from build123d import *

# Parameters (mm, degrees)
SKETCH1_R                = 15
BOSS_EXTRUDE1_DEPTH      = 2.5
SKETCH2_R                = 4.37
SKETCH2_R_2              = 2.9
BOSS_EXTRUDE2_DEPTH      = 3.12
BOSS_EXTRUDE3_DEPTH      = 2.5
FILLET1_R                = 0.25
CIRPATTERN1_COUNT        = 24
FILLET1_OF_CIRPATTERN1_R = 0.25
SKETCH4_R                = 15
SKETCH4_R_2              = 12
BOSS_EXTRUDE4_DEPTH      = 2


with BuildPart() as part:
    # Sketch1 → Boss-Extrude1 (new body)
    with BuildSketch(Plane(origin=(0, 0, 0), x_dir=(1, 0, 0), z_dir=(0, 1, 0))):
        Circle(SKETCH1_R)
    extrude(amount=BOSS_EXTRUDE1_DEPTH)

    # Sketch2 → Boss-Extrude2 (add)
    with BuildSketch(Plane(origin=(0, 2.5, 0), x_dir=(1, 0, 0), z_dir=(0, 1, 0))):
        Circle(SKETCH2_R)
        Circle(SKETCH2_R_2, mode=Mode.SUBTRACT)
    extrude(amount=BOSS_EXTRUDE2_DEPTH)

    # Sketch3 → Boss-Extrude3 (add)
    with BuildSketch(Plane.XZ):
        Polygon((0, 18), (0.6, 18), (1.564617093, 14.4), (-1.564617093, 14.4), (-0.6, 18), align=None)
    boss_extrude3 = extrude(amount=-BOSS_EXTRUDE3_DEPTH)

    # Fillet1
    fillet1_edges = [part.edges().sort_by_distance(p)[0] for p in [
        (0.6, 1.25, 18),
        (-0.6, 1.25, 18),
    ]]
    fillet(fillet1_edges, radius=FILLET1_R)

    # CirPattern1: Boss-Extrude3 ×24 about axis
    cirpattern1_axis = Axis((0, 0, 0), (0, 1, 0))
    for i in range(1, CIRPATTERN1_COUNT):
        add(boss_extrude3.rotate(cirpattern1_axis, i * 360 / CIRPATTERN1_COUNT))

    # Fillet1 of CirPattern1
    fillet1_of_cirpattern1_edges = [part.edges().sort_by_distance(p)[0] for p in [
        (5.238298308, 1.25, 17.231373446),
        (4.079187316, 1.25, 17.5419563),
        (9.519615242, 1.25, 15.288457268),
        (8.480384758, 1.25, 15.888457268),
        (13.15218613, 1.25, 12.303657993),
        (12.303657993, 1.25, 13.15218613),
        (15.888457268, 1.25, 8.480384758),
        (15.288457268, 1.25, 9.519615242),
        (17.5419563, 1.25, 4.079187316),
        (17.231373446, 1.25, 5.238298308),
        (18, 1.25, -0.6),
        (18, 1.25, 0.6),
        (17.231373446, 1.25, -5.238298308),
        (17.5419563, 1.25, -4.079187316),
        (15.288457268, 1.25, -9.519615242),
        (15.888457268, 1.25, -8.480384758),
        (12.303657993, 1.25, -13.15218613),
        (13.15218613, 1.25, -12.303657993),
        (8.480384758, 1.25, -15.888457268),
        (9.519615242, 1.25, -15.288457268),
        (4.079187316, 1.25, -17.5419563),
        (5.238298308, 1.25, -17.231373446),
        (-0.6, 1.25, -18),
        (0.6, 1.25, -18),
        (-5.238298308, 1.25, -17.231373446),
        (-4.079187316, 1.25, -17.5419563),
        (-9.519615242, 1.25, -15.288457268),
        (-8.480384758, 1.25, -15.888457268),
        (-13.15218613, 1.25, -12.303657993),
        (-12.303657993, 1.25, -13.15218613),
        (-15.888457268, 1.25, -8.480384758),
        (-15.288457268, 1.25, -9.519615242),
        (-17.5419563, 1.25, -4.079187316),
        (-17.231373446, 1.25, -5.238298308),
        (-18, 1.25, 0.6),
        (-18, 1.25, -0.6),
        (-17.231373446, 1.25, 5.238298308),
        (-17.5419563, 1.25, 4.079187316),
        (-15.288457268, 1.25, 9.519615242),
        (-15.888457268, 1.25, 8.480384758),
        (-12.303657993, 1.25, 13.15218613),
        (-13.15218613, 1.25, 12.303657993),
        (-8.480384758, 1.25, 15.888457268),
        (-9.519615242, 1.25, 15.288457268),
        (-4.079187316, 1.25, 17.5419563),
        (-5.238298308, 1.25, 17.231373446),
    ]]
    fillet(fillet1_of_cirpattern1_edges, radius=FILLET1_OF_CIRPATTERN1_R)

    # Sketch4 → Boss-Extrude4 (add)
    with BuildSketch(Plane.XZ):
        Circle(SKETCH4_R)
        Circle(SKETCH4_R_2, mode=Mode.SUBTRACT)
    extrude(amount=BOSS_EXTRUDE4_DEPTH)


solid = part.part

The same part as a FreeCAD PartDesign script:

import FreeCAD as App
import Part
import Sketcher
Q = App.Units.Quantity


def edges_at(feature, points):
    """Names of the edges that pass closest to the given points."""
    edges = feature.Shape.Edges
    near = lambda p: min(range(len(edges)), key=lambda i: edges[i].distToShape(Part.Vertex(*p))[0])
    return sorted({f"Edge{near(p) + 1}" for p in points})

doc = App.newDocument("Part")
body = doc.addObject("PartDesign::Body", "Body")

sketch1 = body.newObject("Sketcher::SketchObject", "Sketch")
sketch1.AttachmentSupport = (doc.getObject("XZ_Plane"), [""])
sketch1.MapMode = "FlatFace"
sketch1.addGeometry(Part.Circle(App.Vector(0, 0, 0), App.Vector(0, 0, 1), 15), False)
sketch1.addConstraint([
    Sketcher.Constraint("Coincident", 0, 3, -1, 1),
    Sketcher.Constraint("Diameter", 0, 30.0),
])
pad1 = body.newObject("PartDesign::Pad", "Pad")
pad1.Profile = sketch1
pad1.Length = 2.5
pad1.Reversed = True

sketch2 = body.newObject("Sketcher::SketchObject", "Sketch001")
sketch2.AttachmentSupport = (doc.getObject("XZ_Plane"), [""])
sketch2.MapMode = "FlatFace"
sketch2.AttachmentOffset = App.Placement(App.Vector(0, 0, -2.5), App.Rotation())
sketch2.addGeometry([
    Part.Circle(App.Vector(0, 0, 0), App.Vector(0, 0, 1), 4.4),
    Part.Circle(App.Vector(0, 0, 0), App.Vector(0, 0, 1), 2.9),
], False)
sketch2.addConstraint([
    Sketcher.Constraint("Coincident", 0, 3, -1, 1),
    Sketcher.Constraint("Coincident", 1, 3, -1, 1),
    Sketcher.Constraint("Diameter", 1, 5.8),
    Sketcher.Constraint("Diameter", 0, 8.74),
])
pad2 = body.newObject("PartDesign::Pad", "Pad001")
pad2.Profile = sketch2
pad2.Length = 3.12
pad2.Reversed = True

sketch3 = body.newObject("Sketcher::SketchObject", "Sketch002")
sketch3.AttachmentSupport = (doc.getObject("XZ_Plane"), [""])
sketch3.MapMode = "FlatFace"
sketch3.addGeometry([
    Part.LineSegment(App.Vector(0.6, 18, 0), App.Vector(-0.6, 18, 0)),
    Part.LineSegment(App.Vector(-0.6, 18, 0), App.Vector(-1.6, 14.4, 0)),
    Part.LineSegment(App.Vector(-1.6, 14.4, 0), App.Vector(1.6, 14.4, 0)),
    Part.LineSegment(App.Vector(1.6, 14.4, 0), App.Vector(0.6, 18, 0)),
], False)
sketch3.addConstraint([
    Sketcher.Constraint("Coincident", 0, 2, 1, 1),
    Sketcher.Constraint("Coincident", 1, 2, 2, 1),
    Sketcher.Constraint("Coincident", 2, 2, 3, 1),
    Sketcher.Constraint("Coincident", 3, 2, 0, 1),
    Sketcher.Constraint("Horizontal", 0),
    Sketcher.Constraint("Horizontal", 2),
    Sketcher.Constraint("Equal", 1, 3),
    Sketcher.Constraint("Angle", 1, Q("-105 deg")),
    Sketcher.Constraint("DistanceX", 0, 2, 0, 1, 1.2),
    Sketcher.Constraint("DistanceY", -1, 1, 0, 2, 18.0),
    Sketcher.Constraint("DistanceX", 0, 2, -1, 1, 0.6),
    Sketcher.Constraint("DistanceY", -1, 1, 1, 2, 14.4),
])
pad3 = body.newObject("PartDesign::Pad", "Pad002")
pad3.Profile = sketch3
pad3.Length = 2.5
pad3.Reversed = True
doc.recompute()

fillet = body.newObject("PartDesign::Fillet", "Fillet")
fillet.Base = (pad3, edges_at(pad3, [(0.6, 1.25, 18), (-0.6, 1.25, 18)]))
fillet.Radius = 0.25
doc.recompute()

polarpattern = body.newObject("PartDesign::PolarPattern", "PolarPattern")
polarpattern.Originals = [pad3]
polarpattern.Axis = (doc.getObject("Y_Axis"), [""])
polarpattern.Angle = 360
polarpattern.Occurrences = 24
body.Tip = polarpattern
doc.recompute()

fillet2 = body.newObject("PartDesign::Fillet", "Fillet001")
fillet2.Base = (polarpattern, edges_at(polarpattern, [
    (5.238, 1.25, 17.231),
    (4.079, 1.25, 17.542),
    (9.52, 1.25, 15.288),
    (8.48, 1.25, 15.888),
    (13.152, 1.25, 12.304),
    (12.304, 1.25, 13.152),
    (15.888, 1.25, 8.48),
    (15.288, 1.25, 9.52),
    (17.542, 1.25, 4.079),
    (17.231, 1.25, 5.238),
    (18, 1.25, -0.6),
    (18, 1.25, 0.6),
    (17.231, 1.25, -5.238),
    (17.542, 1.25, -4.079),
    (15.288, 1.25, -9.52),
    (15.888, 1.25, -8.48),
    (12.304, 1.25, -13.152),
    (13.152, 1.25, -12.304),
    (8.48, 1.25, -15.888),
    (9.52, 1.25, -15.288),
    (4.079, 1.25, -17.542),
    (5.238, 1.25, -17.231),
    (-0.6, 1.25, -18),
    (0.6, 1.25, -18),
    (-5.238, 1.25, -17.231),
    (-4.079, 1.25, -17.542),
    (-9.52, 1.25, -15.288),
    (-8.48, 1.25, -15.888),
    (-13.152, 1.25, -12.304),
    (-12.304, 1.25, -13.152),
    (-15.888, 1.25, -8.48),
    (-15.288, 1.25, -9.52),
    (-17.542, 1.25, -4.079),
    (-17.231, 1.25, -5.238),
    (-18, 1.25, 0.6),
    (-18, 1.25, -0.6),
    (-17.231, 1.25, 5.238),
    (-17.542, 1.25, 4.079),
    (-15.288, 1.25, 9.52),
    (-15.888, 1.25, 8.48),
    (-12.304, 1.25, 13.152),
    (-13.152, 1.25, 12.304),
    (-8.48, 1.25, 15.888),
    (-9.52, 1.25, 15.288),
    (-4.079, 1.25, 17.542),
    (-5.238, 1.25, 17.231),
]))
fillet2.Radius = 0.25

sketch4 = body.newObject("Sketcher::SketchObject", "Sketch003")
sketch4.AttachmentSupport = (doc.getObject("XZ_Plane"), [""])
sketch4.MapMode = "FlatFace"
sketch4.addGeometry([
    Part.Circle(App.Vector(0, 0, 0), App.Vector(0, 0, 1), 15),
    Part.Circle(App.Vector(0, 0, 0), App.Vector(0, 0, 1), 12),
], False)
sketch4.addConstraint([
    Sketcher.Constraint("Coincident", 0, 3, -1, 1),
    Sketcher.Constraint("Coincident", 1, 3, -1, 1),
    Sketcher.Constraint("Diameter", 0, 30.0),
    Sketcher.Constraint("Diameter", 1, 24.0),
])
pad4 = body.newObject("PartDesign::Pad", "Pad003")
pad4.Profile = sketch4
pad4.Length = 2

doc.recompute()
